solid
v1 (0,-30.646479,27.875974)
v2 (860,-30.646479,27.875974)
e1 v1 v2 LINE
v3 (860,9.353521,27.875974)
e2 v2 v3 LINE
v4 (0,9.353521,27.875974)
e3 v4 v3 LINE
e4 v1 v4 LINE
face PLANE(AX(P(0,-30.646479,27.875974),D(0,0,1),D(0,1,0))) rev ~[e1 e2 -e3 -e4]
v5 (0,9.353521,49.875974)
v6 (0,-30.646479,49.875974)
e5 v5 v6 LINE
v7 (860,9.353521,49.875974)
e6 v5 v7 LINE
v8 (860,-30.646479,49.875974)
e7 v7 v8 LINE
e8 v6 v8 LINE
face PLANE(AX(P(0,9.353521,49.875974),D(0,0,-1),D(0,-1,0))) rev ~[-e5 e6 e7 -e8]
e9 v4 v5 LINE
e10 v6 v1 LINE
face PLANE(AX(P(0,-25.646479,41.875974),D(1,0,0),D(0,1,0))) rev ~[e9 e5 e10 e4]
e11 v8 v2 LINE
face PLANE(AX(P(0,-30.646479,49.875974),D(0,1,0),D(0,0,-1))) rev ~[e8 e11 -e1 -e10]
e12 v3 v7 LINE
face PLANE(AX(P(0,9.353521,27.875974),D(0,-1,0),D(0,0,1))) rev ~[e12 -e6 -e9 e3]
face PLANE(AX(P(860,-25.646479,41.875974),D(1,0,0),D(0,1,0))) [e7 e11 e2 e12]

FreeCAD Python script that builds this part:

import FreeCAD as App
import Part
import Sketcher
from FreeCAD import Vector

doc = App.newDocument("Part")
params = doc.addObject("Spreadsheet::Sheet", "Params")
for row, (alias, value) in enumerate([
    ("sketch1_width", "40 mm"),
    ("sketch1_height", "22 mm"),
    ("pad1_length", "860 mm"),
], start=1):
    params.set(f"A{row}", alias)
    params.set(f"B{row}", "=" + value)
    params.setAlias(f"B{row}", alias)

body = doc.addObject("PartDesign::Body", "Body")

# Sketch on YZ plane
sketch1 = body.newObject("Sketcher::SketchObject", "Sketch")
sketch1.AttachmentSupport = (doc.getObject("YZ_Plane"), [""])
sketch1.MapMode = "FlatFace"
sketch1.addGeometry([
    Part.LineSegment(Vector(-31, 28, 0), Vector(9, 28, 0)),
    Part.LineSegment(Vector(9, 28, 0), Vector(9, 50, 0)),
    Part.LineSegment(Vector(9, 50, 0), Vector(-31, 50, 0)),
    Part.LineSegment(Vector(-31, 50, 0), Vector(-31, 28, 0)),
], False)
sketch1.addConstraint([
    Sketcher.Constraint("Coincident", 0, 2, 1, 1),
    Sketcher.Constraint("Coincident", 1, 2, 2, 1),
    Sketcher.Constraint("Coincident", 2, 2, 3, 1),
    Sketcher.Constraint("Coincident", 3, 2, 0, 1),
    Sketcher.Constraint("Horizontal", 0),
    Sketcher.Constraint("Vertical", 1),
    Sketcher.Constraint("Horizontal", 2),
    Sketcher.Constraint("Vertical", 3),
    Sketcher.Constraint("DistanceX", 0, 1, 0, 2, 40.0),
    Sketcher.Constraint("DistanceY", 1, 1, 1, 2, 22.0),
    Sketcher.Constraint("DistanceX", -1, 1, 0, 2, 9.353521),
    Sketcher.Constraint("DistanceY", -1, 1, 0, 2, 27.875974),
])
sketch1.setExpression("Constraints[8]", "Params.sketch1_width")
sketch1.setExpression("Constraints[9]", "Params.sketch1_height")
pad1 = body.newObject("PartDesign::Pad", "Pad")
pad1.Profile = sketch1
pad1.setExpression("Length", "Params.pad1_length")

doc.recompute()
